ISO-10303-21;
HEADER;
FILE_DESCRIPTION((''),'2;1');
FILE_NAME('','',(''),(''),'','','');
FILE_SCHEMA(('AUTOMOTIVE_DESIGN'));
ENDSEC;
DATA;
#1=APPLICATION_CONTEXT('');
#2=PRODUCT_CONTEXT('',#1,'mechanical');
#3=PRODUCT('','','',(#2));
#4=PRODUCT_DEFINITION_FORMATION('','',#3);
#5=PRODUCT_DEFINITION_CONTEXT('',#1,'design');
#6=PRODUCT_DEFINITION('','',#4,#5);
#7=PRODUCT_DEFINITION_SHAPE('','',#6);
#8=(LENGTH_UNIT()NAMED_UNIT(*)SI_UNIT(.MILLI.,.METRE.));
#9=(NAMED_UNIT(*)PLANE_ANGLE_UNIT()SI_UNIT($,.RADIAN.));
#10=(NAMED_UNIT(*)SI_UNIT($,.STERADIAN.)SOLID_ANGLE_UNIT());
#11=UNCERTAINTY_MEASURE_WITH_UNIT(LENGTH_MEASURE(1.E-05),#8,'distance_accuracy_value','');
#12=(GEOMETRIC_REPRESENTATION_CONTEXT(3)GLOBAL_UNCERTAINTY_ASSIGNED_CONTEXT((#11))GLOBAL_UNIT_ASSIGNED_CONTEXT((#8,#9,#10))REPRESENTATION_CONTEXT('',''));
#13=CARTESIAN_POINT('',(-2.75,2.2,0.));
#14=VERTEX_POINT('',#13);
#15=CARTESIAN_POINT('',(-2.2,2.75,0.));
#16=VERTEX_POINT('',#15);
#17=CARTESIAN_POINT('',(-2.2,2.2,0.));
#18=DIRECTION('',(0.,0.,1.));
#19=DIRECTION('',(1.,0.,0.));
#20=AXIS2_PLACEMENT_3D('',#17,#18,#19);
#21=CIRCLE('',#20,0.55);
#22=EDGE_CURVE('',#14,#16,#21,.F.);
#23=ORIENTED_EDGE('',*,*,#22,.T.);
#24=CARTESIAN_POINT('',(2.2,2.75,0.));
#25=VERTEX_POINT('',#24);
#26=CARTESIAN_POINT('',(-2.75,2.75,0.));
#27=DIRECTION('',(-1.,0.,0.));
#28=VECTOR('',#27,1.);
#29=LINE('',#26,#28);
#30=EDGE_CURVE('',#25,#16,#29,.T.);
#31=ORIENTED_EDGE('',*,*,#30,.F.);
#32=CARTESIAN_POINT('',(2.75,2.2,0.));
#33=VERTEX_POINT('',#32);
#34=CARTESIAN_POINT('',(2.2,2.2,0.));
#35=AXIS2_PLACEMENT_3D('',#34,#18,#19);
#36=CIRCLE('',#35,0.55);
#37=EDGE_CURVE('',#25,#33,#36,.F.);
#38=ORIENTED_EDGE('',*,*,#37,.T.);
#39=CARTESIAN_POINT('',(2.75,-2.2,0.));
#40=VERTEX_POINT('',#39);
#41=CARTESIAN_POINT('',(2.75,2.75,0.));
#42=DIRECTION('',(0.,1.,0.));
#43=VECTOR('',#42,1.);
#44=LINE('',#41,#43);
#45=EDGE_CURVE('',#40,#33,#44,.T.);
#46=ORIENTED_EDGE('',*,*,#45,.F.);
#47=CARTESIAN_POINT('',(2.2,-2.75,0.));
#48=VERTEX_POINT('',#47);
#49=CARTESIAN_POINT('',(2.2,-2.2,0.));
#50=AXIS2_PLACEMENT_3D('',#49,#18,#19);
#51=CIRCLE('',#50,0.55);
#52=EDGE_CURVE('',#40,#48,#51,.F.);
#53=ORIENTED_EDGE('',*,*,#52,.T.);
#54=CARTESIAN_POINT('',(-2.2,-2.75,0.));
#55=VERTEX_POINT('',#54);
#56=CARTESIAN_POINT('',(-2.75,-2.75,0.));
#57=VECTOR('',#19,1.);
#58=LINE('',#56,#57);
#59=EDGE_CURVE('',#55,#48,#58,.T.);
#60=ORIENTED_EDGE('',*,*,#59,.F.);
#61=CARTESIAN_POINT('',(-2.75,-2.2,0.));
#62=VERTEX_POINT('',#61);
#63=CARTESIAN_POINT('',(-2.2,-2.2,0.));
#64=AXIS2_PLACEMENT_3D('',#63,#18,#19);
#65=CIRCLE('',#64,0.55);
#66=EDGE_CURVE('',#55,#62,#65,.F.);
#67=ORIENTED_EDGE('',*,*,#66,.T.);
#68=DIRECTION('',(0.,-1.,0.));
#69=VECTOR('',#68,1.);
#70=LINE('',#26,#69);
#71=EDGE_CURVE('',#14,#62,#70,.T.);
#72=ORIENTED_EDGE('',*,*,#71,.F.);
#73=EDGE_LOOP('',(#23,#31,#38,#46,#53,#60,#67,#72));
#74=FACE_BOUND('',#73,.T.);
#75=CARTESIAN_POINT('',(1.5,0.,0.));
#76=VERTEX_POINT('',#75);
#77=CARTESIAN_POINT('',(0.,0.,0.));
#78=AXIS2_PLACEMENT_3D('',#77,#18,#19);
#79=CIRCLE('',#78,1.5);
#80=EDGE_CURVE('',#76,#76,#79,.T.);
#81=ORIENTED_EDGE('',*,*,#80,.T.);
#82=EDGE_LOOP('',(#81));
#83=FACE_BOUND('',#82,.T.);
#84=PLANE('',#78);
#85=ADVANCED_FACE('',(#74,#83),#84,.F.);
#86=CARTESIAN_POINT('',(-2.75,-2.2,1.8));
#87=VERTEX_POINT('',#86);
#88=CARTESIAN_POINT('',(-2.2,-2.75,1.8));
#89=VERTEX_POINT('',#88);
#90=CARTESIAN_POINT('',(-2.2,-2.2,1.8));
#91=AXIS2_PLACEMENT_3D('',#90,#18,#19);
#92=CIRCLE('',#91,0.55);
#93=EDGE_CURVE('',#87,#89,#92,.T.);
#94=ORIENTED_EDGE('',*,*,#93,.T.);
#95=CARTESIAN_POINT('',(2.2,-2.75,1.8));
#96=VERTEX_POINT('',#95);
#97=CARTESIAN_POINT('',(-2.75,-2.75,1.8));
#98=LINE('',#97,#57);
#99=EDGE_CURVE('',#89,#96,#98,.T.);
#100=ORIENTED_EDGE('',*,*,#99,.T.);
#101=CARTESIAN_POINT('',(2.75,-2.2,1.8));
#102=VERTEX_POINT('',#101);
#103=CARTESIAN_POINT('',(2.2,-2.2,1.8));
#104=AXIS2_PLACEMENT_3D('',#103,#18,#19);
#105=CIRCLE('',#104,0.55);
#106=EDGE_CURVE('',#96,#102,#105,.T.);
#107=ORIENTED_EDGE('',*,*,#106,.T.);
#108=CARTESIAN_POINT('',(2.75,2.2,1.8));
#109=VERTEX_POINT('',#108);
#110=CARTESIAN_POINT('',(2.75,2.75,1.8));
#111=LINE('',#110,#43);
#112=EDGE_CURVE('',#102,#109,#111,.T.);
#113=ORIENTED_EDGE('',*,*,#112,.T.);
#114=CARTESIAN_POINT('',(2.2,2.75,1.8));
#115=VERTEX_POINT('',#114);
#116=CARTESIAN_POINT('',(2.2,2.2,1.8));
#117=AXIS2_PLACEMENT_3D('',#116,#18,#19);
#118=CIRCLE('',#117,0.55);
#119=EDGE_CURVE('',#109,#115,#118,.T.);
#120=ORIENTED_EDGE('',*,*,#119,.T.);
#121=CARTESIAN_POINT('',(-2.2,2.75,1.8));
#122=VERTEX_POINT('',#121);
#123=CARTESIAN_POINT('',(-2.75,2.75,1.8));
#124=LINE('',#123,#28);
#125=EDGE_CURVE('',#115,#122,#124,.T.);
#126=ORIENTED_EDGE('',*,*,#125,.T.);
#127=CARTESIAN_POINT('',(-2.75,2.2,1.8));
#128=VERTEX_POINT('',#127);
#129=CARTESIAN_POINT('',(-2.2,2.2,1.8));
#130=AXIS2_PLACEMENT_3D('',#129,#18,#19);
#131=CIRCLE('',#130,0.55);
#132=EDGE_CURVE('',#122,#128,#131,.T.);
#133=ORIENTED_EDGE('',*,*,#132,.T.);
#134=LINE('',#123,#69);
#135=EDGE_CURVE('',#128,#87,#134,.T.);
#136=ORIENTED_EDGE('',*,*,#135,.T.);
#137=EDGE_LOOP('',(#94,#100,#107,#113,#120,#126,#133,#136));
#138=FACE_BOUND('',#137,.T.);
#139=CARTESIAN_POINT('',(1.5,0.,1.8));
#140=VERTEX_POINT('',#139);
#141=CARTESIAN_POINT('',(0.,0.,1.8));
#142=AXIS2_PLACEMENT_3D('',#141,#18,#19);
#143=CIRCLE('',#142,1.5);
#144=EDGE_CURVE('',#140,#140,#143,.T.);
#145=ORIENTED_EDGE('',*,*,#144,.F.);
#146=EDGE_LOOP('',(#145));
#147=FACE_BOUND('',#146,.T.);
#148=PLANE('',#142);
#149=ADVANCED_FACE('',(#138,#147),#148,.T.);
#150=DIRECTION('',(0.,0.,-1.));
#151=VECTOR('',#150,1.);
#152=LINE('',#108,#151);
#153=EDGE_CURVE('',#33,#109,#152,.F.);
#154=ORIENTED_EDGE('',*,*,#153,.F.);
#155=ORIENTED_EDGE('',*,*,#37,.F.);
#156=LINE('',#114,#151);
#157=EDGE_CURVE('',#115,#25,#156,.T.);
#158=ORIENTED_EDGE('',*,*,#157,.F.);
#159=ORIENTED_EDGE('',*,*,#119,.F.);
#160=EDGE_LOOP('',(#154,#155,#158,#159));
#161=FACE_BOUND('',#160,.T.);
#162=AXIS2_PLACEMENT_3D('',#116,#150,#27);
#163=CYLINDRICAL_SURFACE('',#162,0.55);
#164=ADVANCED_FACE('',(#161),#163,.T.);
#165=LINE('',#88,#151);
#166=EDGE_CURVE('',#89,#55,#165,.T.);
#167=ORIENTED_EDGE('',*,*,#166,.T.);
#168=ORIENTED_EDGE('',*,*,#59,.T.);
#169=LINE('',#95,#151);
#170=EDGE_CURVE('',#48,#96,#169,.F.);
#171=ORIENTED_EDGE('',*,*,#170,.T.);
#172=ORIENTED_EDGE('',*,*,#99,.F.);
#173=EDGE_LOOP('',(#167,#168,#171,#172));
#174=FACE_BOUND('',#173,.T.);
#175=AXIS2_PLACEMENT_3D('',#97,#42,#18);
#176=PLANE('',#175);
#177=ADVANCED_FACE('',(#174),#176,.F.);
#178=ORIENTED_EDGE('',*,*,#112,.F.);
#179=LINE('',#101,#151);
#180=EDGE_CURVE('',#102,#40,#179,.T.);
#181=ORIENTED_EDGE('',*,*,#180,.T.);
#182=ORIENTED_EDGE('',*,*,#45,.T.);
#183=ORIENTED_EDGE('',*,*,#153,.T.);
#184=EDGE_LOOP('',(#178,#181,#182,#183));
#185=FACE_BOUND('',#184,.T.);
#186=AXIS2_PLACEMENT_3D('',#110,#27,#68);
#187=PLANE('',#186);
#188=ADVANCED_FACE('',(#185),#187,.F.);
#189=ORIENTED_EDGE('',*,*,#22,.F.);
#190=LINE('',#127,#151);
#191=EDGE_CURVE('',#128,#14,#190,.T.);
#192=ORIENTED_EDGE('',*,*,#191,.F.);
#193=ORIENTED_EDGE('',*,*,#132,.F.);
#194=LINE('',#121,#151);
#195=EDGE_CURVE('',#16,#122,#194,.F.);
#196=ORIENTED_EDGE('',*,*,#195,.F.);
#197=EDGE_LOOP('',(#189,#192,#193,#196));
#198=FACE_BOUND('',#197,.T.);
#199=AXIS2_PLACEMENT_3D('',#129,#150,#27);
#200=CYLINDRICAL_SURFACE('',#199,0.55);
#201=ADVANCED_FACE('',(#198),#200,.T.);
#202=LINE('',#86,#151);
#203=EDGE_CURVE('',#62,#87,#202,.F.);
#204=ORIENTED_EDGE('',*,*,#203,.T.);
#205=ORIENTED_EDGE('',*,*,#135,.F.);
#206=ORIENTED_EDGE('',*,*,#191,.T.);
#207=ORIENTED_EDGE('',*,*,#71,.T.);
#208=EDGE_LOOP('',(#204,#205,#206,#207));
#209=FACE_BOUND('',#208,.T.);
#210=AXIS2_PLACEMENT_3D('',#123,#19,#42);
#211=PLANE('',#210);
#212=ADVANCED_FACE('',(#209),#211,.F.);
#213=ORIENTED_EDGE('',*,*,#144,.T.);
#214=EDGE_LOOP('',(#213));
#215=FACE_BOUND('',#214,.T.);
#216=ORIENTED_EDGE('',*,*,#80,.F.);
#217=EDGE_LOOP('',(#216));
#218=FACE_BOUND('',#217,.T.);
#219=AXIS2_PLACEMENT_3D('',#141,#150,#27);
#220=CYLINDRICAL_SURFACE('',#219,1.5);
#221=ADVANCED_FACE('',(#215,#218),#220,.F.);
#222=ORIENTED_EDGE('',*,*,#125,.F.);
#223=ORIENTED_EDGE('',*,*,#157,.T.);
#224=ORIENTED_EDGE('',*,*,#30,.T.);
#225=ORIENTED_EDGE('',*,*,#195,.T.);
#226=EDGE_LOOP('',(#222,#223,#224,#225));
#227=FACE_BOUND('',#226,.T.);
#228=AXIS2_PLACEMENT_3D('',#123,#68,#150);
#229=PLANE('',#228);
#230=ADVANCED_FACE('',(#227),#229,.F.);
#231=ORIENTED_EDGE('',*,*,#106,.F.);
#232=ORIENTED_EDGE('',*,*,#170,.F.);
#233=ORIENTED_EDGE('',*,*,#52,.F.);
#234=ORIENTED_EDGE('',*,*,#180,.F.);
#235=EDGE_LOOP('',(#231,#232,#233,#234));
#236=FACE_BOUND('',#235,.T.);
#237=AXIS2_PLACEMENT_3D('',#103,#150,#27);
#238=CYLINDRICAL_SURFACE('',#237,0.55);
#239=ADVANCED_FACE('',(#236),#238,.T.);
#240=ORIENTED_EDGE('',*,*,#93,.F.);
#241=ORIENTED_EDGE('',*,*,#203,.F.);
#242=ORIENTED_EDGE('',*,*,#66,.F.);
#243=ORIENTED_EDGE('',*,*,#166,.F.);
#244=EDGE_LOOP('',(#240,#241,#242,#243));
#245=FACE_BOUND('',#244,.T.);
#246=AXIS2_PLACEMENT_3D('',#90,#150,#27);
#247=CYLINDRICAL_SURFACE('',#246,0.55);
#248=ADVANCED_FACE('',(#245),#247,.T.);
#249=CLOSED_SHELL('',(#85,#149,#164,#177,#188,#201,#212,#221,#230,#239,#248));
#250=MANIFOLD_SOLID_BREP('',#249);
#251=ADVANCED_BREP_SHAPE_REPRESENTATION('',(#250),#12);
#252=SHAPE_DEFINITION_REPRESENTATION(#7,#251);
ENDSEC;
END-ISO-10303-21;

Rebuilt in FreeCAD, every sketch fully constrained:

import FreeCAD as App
import Part
import Sketcher

V = App.Vector


def edges_at(feature, points):
    """Names of the edges that pass closest to the given points."""
    edges = feature.Shape.Edges
    near = lambda p: min(range(len(edges)), key=lambda i: edges[i].distToShape(Part.Vertex(*p))[0])
    return sorted({f"Edge{near(p) + 1}" for p in points})

doc = App.newDocument("Part")
body = doc.addObject("PartDesign::Body", "Body")

# Sketch on XY plane
sketch1 = body.newObject("Sketcher::SketchObject", "Sketch")
sketch1.AttachmentSupport = (doc.getObject("XY_Plane"), [""])
sketch1.MapMode = "FlatFace"
sketch1.addGeometry(Part.LineSegment(V(-2.8, 2.8, 0), V(-2.8, -2.8, 0)), False)
sketch1.addGeometry(Part.LineSegment(V(-2.8, -2.8, 0), V(2.8, -2.8, 0)), False)
sketch1.addGeometry(Part.LineSegment(V(2.8, -2.8, 0), V(2.8, 2.8, 0)), False)
sketch1.addGeometry(Part.LineSegment(V(2.8, 2.8, 0), V(-2.8, 2.8, 0)), False)
sketch1.addGeometry(Part.Circle(V(0, 0, 0), V(0, 0, 1), 1.5), False)
sketch1.addConstraint(Sketcher.Constraint("Coincident", 0, 2, 1, 1))
sketch1.addConstraint(Sketcher.Constraint("Coincident", 1, 2, 2, 1))
sketch1.addConstraint(Sketcher.Constraint("Coincident", 2, 2, 3, 1))
sketch1.addConstraint(Sketcher.Constraint("Coincident", 3, 2, 0, 1))
sketch1.addConstraint(Sketcher.Constraint("Vertical", 0))
sketch1.addConstraint(Sketcher.Constraint("Horizontal", 1))
sketch1.addConstraint(Sketcher.Constraint("Vertical", 2))
sketch1.addConstraint(Sketcher.Constraint("Horizontal", 3))
sketch1.addConstraint(Sketcher.Constraint("Coincident", 4, 3, -1, 1))
sketch1.addConstraint(Sketcher.Constraint("Symmetric", 0, 2, 2, 2, -1, 1))
sketch1.addConstraint(Sketcher.Constraint("Equal", 3, 0))
sketch1.addConstraint(Sketcher.Constraint("Diameter", 4, 3.0))
sketch1.addConstraint(Sketcher.Constraint("DistanceX", 1, 1, 1, 2, 5.5))
pad1 = body.newObject("PartDesign::Pad", "Pad")
pad1.Profile = sketch1
pad1.Length = 1.8
doc.recompute()

fillet = body.newObject("PartDesign::Fillet", "Fillet")
fillet.Base = (pad1, edges_at(pad1, [
    (2.75, -2.75, 0.9),
    (-2.75, -2.75, 0.9),
    (-2.75, 2.75, 0.9),
    (2.75, 2.75, 0.9),
]))
fillet.Radius = 0.55

doc.recompute()
